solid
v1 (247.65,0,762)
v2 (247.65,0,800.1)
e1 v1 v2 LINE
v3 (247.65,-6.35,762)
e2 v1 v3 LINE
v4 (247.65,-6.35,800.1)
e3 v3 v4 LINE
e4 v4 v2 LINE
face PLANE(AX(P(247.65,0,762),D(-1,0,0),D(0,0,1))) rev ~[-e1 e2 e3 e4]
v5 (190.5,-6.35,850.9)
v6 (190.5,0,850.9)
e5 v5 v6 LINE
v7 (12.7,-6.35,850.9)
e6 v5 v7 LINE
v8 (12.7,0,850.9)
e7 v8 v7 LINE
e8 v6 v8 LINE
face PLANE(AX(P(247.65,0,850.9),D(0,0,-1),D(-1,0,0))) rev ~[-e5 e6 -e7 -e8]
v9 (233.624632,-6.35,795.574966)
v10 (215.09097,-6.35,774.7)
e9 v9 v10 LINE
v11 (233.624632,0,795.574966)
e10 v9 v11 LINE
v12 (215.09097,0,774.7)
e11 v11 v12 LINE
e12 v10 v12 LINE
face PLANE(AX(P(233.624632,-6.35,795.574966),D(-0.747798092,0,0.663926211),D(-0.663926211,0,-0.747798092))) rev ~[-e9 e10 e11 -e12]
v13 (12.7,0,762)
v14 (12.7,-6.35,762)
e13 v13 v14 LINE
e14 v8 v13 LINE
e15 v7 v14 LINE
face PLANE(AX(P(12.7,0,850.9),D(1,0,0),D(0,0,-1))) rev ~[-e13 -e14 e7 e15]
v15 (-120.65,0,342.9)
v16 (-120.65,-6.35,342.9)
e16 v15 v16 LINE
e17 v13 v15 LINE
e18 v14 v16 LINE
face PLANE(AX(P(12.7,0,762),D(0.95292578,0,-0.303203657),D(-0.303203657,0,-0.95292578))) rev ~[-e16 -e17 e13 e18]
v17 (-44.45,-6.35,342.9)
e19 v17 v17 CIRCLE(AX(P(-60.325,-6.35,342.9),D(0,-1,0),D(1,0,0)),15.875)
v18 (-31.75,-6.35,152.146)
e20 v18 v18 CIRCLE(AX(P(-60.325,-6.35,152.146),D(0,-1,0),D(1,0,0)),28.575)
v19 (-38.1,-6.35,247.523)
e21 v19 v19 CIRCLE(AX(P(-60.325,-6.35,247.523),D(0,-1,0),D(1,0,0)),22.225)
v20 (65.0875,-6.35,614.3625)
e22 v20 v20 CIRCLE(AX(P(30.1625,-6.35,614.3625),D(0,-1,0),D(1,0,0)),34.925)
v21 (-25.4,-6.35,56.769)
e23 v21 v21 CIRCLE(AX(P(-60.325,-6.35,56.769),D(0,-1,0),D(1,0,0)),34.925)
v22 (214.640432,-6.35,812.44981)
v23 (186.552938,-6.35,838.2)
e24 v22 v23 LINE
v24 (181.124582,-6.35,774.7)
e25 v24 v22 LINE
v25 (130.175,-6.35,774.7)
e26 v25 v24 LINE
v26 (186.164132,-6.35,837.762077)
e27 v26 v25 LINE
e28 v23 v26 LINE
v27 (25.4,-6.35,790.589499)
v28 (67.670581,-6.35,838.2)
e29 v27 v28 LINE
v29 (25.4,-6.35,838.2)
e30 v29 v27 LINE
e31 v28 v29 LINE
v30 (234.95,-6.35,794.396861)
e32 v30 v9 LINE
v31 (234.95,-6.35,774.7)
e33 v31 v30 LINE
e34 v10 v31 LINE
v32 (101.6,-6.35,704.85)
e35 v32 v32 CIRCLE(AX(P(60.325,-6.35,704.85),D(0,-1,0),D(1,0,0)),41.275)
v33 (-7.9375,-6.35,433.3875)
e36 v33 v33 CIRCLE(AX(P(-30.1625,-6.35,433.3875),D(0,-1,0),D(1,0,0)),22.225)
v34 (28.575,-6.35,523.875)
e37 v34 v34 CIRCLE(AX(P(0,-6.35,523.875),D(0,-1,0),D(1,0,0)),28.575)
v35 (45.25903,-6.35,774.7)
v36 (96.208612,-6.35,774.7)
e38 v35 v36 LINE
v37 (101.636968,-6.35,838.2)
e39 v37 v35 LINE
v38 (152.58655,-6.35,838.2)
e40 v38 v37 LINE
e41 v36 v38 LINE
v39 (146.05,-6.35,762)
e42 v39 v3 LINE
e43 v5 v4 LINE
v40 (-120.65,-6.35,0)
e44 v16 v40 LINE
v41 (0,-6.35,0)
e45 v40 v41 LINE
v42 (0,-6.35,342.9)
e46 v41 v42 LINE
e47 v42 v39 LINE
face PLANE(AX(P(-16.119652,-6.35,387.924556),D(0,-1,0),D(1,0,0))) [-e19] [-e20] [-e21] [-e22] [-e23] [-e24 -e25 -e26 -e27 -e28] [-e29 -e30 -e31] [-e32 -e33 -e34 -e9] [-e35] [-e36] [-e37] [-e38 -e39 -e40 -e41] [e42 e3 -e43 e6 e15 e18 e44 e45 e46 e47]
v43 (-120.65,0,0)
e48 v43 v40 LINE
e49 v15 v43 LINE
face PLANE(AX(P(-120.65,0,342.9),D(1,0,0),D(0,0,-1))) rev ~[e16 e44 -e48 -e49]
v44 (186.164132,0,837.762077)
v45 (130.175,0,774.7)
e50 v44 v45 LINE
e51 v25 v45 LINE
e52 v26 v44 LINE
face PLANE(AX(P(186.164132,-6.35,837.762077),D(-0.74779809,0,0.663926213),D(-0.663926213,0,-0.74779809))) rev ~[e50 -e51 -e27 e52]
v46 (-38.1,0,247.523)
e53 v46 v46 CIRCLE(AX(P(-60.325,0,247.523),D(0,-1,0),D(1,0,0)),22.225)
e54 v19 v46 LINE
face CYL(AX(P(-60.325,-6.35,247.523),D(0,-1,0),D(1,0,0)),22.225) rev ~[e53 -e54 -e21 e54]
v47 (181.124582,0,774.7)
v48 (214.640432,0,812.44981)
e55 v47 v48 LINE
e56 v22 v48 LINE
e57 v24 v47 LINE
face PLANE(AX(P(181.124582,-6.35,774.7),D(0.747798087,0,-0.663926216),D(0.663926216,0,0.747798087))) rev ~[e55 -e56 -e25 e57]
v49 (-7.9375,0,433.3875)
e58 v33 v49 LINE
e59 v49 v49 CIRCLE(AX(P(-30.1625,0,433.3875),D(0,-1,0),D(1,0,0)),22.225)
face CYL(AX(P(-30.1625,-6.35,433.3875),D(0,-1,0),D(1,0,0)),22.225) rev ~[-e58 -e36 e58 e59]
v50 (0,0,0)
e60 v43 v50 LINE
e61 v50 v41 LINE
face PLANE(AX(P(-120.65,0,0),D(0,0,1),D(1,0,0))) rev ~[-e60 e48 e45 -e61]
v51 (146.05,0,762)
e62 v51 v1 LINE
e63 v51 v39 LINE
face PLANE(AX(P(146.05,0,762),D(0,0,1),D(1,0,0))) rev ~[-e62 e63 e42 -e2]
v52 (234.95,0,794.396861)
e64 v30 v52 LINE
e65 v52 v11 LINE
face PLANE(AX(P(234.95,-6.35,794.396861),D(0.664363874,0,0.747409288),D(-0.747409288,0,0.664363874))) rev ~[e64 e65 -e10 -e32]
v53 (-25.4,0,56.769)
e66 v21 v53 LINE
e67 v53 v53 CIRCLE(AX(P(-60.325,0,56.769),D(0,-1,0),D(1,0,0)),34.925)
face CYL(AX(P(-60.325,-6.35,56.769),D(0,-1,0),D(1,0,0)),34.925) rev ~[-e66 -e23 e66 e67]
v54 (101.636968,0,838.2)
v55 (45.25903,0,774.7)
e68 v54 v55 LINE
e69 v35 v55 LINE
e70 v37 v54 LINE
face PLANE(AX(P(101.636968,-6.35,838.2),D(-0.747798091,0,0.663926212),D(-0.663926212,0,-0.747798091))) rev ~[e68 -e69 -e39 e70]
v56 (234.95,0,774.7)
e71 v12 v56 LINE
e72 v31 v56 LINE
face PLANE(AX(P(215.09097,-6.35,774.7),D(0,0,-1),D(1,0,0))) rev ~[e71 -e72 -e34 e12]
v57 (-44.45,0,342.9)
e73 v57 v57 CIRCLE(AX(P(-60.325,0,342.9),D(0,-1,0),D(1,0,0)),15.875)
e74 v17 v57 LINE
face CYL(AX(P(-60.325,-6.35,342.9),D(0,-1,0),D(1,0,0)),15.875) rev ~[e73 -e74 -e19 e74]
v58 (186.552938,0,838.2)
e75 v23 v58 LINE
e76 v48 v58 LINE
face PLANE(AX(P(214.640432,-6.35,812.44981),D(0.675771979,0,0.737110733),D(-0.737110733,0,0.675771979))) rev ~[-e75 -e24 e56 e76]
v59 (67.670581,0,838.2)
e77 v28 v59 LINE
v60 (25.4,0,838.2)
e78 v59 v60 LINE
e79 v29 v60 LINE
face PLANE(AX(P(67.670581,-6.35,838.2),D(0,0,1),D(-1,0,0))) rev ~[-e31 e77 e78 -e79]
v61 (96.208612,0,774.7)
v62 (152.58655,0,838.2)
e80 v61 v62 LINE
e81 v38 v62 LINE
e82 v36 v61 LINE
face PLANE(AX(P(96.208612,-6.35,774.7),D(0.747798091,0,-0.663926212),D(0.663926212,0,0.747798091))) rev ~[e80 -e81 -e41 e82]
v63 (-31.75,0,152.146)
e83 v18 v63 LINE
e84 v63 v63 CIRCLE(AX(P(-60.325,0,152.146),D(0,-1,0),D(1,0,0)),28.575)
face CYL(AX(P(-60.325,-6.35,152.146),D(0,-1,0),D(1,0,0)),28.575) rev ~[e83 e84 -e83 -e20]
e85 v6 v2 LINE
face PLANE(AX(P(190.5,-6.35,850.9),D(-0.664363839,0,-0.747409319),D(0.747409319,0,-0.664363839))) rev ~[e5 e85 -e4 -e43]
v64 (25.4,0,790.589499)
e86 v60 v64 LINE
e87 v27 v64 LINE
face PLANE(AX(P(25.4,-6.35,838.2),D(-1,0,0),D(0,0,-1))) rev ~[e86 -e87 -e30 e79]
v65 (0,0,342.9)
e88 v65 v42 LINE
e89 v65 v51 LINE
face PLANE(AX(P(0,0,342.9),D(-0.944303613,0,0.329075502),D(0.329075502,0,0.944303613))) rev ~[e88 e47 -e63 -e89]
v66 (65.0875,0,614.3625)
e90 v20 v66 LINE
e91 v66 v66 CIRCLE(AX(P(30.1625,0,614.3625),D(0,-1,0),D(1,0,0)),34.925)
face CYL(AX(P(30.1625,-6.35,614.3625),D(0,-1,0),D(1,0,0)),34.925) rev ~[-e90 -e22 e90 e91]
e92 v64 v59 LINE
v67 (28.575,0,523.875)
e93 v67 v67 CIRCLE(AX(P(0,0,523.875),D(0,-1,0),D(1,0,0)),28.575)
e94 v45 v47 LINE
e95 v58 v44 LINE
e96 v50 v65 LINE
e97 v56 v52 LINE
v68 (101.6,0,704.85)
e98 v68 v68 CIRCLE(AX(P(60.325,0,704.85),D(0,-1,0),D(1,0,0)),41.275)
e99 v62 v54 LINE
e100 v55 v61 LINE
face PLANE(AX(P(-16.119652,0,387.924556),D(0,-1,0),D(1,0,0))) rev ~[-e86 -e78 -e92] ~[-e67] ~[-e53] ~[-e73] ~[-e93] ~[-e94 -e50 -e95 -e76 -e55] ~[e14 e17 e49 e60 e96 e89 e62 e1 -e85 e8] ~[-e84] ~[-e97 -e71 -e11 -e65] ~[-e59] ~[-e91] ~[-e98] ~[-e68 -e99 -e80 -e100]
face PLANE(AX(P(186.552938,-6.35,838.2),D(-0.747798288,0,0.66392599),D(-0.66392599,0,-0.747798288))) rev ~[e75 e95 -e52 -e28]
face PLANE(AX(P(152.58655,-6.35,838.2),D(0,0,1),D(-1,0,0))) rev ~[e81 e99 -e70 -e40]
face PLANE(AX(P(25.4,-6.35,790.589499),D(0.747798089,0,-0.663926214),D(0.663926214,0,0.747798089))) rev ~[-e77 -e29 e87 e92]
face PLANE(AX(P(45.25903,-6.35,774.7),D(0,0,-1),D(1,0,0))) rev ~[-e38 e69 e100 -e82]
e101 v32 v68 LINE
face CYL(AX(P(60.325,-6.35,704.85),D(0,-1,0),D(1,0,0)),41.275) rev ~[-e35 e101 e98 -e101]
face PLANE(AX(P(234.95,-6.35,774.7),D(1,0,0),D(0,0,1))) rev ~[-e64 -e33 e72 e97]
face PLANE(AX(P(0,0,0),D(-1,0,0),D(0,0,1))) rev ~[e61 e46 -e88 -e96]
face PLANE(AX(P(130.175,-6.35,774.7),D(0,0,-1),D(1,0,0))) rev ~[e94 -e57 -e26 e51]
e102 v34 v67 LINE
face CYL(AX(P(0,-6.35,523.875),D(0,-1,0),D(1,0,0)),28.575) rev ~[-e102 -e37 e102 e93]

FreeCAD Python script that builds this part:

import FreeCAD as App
import Part
import Sketcher

V = App.Vector
Q = App.Units.Quantity

doc = App.newDocument("Part")
body = doc.addObject("PartDesign::Body", "Body")

# Sketch on XZ plane
sketch1 = doc.addObject("Sketcher::SketchObject", "Sketch")
body.addObject(sketch1)
sketch1.AttachmentSupport = (doc.XZ_Plane, [""])
sketch1.MapMode = "FlatFace"
sketch1.addGeometry([
    Part.LineSegment(V(-121, 343, 0), V(-121, 0, 0)),  # 0
    Part.LineSegment(V(-121, 0, 0), V(0, 0, 0)),  # 1
    Part.LineSegment(V(0, 0, 0), V(0, 343, 0)),  # 2
    Part.LineSegment(V(0, 343, 0), V(146, 762, 0)),  # 3
    Part.LineSegment(V(146, 762, 0), V(248, 762, 0)),  # 4
    Part.LineSegment(V(248, 762, 0), V(248, 851, 0)),  # 5
    Part.LineSegment(V(248, 851, 0), V(13, 851, 0)),  # 6
    Part.LineSegment(V(13, 851, 0), V(13, 762, 0)),  # 7
    Part.LineSegment(V(13, 762, 0), V(-121, 343, 0)),  # 8
], False)
sketch1.addConstraint([
    Sketcher.Constraint("Coincident", 0, 2, 1, 1),
    Sketcher.Constraint("Coincident", 1, 2, 2, 1),
    Sketcher.Constraint("Coincident", 2, 2, 3, 1),
    Sketcher.Constraint("Coincident", 3, 2, 4, 1),
    Sketcher.Constraint("Coincident", 4, 2, 5, 1),
    Sketcher.Constraint("Coincident", 5, 2, 6, 1),
    Sketcher.Constraint("Coincident", 6, 2, 7, 1),
    Sketcher.Constraint("Coincident", 7, 2, 8, 1),
    Sketcher.Constraint("Coincident", 8, 2, 0, 1),
    Sketcher.Constraint("Vertical", 0),
    Sketcher.Constraint("Horizontal", 1),
    Sketcher.Constraint("Vertical", 2),
    Sketcher.Constraint("Horizontal", 4),
    Sketcher.Constraint("Vertical", 5),
    Sketcher.Constraint("Horizontal", 6),
    Sketcher.Constraint("Vertical", 7),
    Sketcher.Constraint("Coincident", 1, 2, -1, 1),
    Sketcher.Constraint("Horizontal", 4, 2, 7, 2),
    Sketcher.Constraint("Horizontal", 2, 2, 8, 2),
    Sketcher.Constraint("DistanceX", 4, 1, 4, 2, Q("4 in")),
    Sketcher.Constraint("DistanceY", 0, 2, 0, 1, Q("13.5 in")),
    Sketcher.Constraint("DistanceY", 5, 1, 5, 2, Q("3.5 in")),
    Sketcher.Constraint("DistanceY", -1, 1, 3, 2, Q("30 in")),
    Sketcher.Constraint("DistanceX", 1, 1, 1, 2, Q("4.75 in")),
    Sketcher.Constraint("DistanceX", 6, 2, 6, 1, Q("9.25 in")),
    Sketcher.Constraint("DistanceX", -1, 1, 6, 2, Q("0.5 in")),
])
pad1 = doc.addObject("PartDesign::Pad", "Pad")
body.addObject(pad1)
pad1.Profile = sketch1
pad1.Length = Q("0.25 in")

# Sketch on XZ plane
sketch2 = doc.addObject("Sketcher::SketchObject", "Sketch001")
body.addObject(sketch2)
sketch2.AttachmentSupport = (doc.XZ_Plane, [""])
sketch2.MapMode = "FlatFace"
sketch2.AttachmentOffset = App.Placement(V(0, 0, 0.25 * 25.4), App.Rotation())
sketch2.addGeometry([
    Part.LineSegment(V(248, 851, 0), V(190, 851, 0)),
    Part.LineSegment(V(190, 851, 0), V(248, 800, 0)),
    Part.LineSegment(V(248, 800, 0), V(248, 851, 0)),
], False)
sketch2.addConstraint([
    Sketcher.Constraint("Coincident", 0, 2, 1, 1),
    Sketcher.Constraint("Coincident", 1, 2, 2, 1),
    Sketcher.Constraint("Coincident", 2, 2, 0, 1),
    Sketcher.Constraint("Horizontal", 0),
    Sketcher.Constraint("Vertical", 2),
    Sketcher.Constraint("DistanceY", 2, 1, 2, 2, Q("2 in")),
    Sketcher.Constraint("DistanceX", 0, 2, 0, 1, Q("2.25 in")),
    Sketcher.Constraint("DistanceX", -1, 1, 0, 2, Q("7.5 in")),
    Sketcher.Constraint("DistanceY", -1, 1, 0, 2, Q("33.5 in")),
])
pocket1 = doc.addObject("PartDesign::Pocket", "Pocket")
body.addObject(pocket1)
pocket1.Profile = sketch2
pocket1.Length = Q("1 in")

# Sketch on XZ plane
sketch3 = doc.addObject("Sketcher::SketchObject", "Sketch002")
body.addObject(sketch3)
sketch3.AttachmentSupport = (doc.XZ_Plane, [""])
sketch3.MapMode = "FlatFace"
sketch3.AttachmentOffset = App.Placement(V(0, 0, 0.25 * 25.4), App.Rotation())
sketch3.addGeometry([
    Part.Circle(V(-60.3, 342.9, 0), V(0, 0, 1), 15.9),  # 0
    Part.Circle(V(-30.2, 433.4, 0), V(0, 0, 1), 22.2),  # 1
    Part.Circle(V(60.3, 704.9, 0), V(0, 0, 1), 41.3),  # 2
    Part.LineSegment(V(186.6, 838.2, 0), V(186.2, 837.8, 0)),  # 3
    Part.LineSegment(V(186.2, 837.8, 0), V(130.2, 774.7, 0)),  # 4
    Part.LineSegment(V(130.2, 774.7, 0), V(181.1, 774.7, 0)),  # 5
    Part.LineSegment(V(181.1, 774.7, 0), V(214.6, 812.4, 0)),  # 6
    Part.LineSegment(V(214.6, 812.4, 0), V(186.6, 838.2, 0)),  # 7
    Part.LineSegment(V(234.9, 794.4, 0), V(233.6, 795.6, 0)),  # 8
    Part.LineSegment(V(233.6, 795.6, 0), V(215.1, 774.7, 0)),  # 9
    Part.LineSegment(V(215.1, 774.7, 0), V(234.9, 774.7, 0)),  # 10
    Part.LineSegment(V(234.9, 774.7, 0), V(234.9, 794.4, 0)),  # 11
    Part.Circle(V(0, 523.9, 0), V(0, 0, 1), 28.6),  # 12
    Part.Circle(V(30.2, 614.4, 0), V(0, 0, 1), 34.9),  # 13
    Part.LineSegment(V(67.7, 838.2, 0), V(25.4, 838.2, 0)),  # 14
    Part.LineSegment(V(25.4, 838.2, 0), V(25.4, 790.6, 0)),  # 15
    Part.LineSegment(V(25.4, 790.6, 0), V(67.7, 838.2, 0)),  # 16
    Part.LineSegment(V(152.6, 838.2, 0), V(101.6, 838.2, 0)),  # 17
    Part.LineSegment(V(101.6, 838.2, 0), V(45.3, 774.7, 0)),  # 18
    Part.LineSegment(V(45.3, 774.7, 0), V(96.2, 774.7, 0)),  # 19
    Part.LineSegment(V(96.2, 774.7, 0), V(152.6, 838.2, 0)),  # 20
    Part.Circle(V(-60.3, 247.5, 0), V(0, 0, 1), 22.2),  # 21
    Part.Circle(V(-60.3, 152.1, 0), V(0, 0, 1), 28.6),  # 22
    Part.Circle(V(-60.3, 56.8, 0), V(0, 0, 1), 34.9),  # 23
], False)
sketch3.addConstraint([
    Sketcher.Constraint("Coincident", 3, 2, 4, 1),
    Sketcher.Constraint("Coincident", 4, 2, 5, 1),
    Sketcher.Constraint("Coincident", 5, 2, 6, 1),
    Sketcher.Constraint("Coincident", 6, 2, 7, 1),
    Sketcher.Constraint("Coincident", 7, 2, 3, 1),
    Sketcher.Constraint("Coincident", 8, 2, 9, 1),
    Sketcher.Constraint("Coincident", 9, 2, 10, 1),
    Sketcher.Constraint("Coincident", 10, 2, 11, 1),
    Sketcher.Constraint("Coincident", 11, 2, 8, 1),
    Sketcher.Constraint("Coincident", 14, 2, 15, 1),
    Sketcher.Constraint("Coincident", 15, 2, 16, 1),
    Sketcher.Constraint("Coincident", 16, 2, 14, 1),
    Sketcher.Constraint("Coincident", 17, 2, 18, 1),
    Sketcher.Constraint("Coincident", 18, 2, 19, 1),
    Sketcher.Constraint("Coincident", 19, 2, 20, 1),
    Sketcher.Constraint("Coincident", 20, 2, 17, 1),
    Sketcher.Constraint("Horizontal", 5),
    Sketcher.Constraint("Horizontal", 10),
    Sketcher.Constraint("Vertical", 11),
    Sketcher.Constraint("Horizontal", 14),
    Sketcher.Constraint("Vertical", 15),
    Sketcher.Constraint("Horizontal", 17),
    Sketcher.Constraint("Horizontal", 19),
    Sketcher.Constraint("Equal", 1, 21),
    Sketcher.Constraint("Equal", 12, 22),
    Sketcher.Constraint("Equal", 13, 23),
    Sketcher.Constraint("PointOnObject", 12, 3, -2),
    Sketcher.Constraint("Parallel", 3, 4),
    Sketcher.Constraint("Parallel", 4, 6),
    Sketcher.Constraint("Parallel", 6, 9),
    Sketcher.Constraint("Parallel", 9, 16),
    Sketcher.Constraint("Parallel", 16, 18),
    Sketcher.Constraint("Parallel", 18, 20),
    Sketcher.Constraint("Horizontal", 5, 2, 9, 2),
    Sketcher.Constraint("Horizontal", 7, 2, 14, 2),
    Sketcher.Constraint("Horizontal", 16, 2, 17, 2),
    Sketcher.Constraint("Horizontal", 10, 2, 18, 2),
    Sketcher.Constraint("Vertical", 0, 3, 21, 3),
    Sketcher.Constraint("Vertical", 21, 3, 22, 3),
    Sketcher.Constraint("Vertical", 22, 3, 23, 3),
    Sketcher.Constraint("Equal", 5, 17),
    Sketcher.Constraint("Diameter", 0, Q("1.25 in")),
    Sketcher.Constraint("Diameter", 1, Q("1.75 in")),
    Sketcher.Constraint("Diameter", 2, Q("3.25 in")),
    Sketcher.Constraint("Diameter", 12, Q("2.25 in")),
    Sketcher.Constraint("Diameter", 13, Q("2.75 in")),
    Sketcher.Constraint("DistanceY", -1, 1, 7, 2, Q("33 in")),
    Sketcher.Constraint("DistanceX", -1, 1, 14, 2, Q("1 in")),
    Sketcher.Constraint("DistanceY", -1, 1, 0, 3, Q("13.5 in")),
    Sketcher.Constraint("DistanceY", -1, 1, 4, 2, Q("30.5 in")),
    Sketcher.Constraint("Angle", 4, Q("-131.6 deg")),
    Sketcher.Constraint("DistanceY", -1, 1, 2, 3, Q("27.75 in")),
    Sketcher.Constraint("DistanceY", -1, 1, 22, 3, Q("5.99 in")),
    Sketcher.Constraint("DistanceX", -1, 1, 10, 2, Q("9.25 in")),
    Sketcher.Constraint("DistanceX", 0, 3, 2, 3, Q("4.75 in")),
    Sketcher.Constraint("DistanceY", 21, 3, 12, 3, Q("10.88 in")),
    Sketcher.Constraint("DistanceY", 23, 3, 21, 3, Q("7.51 in")),
    Sketcher.Constraint("DistanceX", 2, 3, 4, 2, Q("2.75 in")),
    Sketcher.Constraint("DistanceX", 0, 3, -1, 1, Q("2.375 in")),
    Sketcher.Constraint("DistanceX", 1, 3, -1, 1, Q("1.1875 in")),
    Sketcher.Constraint("DistanceY", -1, 1, 1, 3, Q("17.0625 in")),
    Sketcher.Constraint("DistanceY", -1, 1, 12, 3, Q("20.625 in")),
    Sketcher.Constraint("DistanceX", -1, 1, 13, 3, Q("1.1875 in")),
    Sketcher.Constraint("DistanceY", -1, 1, 13, 3, Q("24.1875 in")),
    Sketcher.Constraint("DistanceY", 15, 2, 15, 1, 47.610501),
    Sketcher.Constraint("DistanceX", 5, 1, 5, 2, 50.949582),
    Sketcher.Constraint("DistanceX", 10, 1, 10, 2, 19.85903),
    Sketcher.Constraint("DistanceY", 11, 1, 11, 2, 19.696861),
    Sketcher.Constraint("DistanceX", 3, 2, 6, 2, 28.4763),
    Sketcher.Constraint("DistanceX", 6, 2, 8, 2, 18.9842),
    Sketcher.Constraint("Distance", 7, 38.10485),
    Sketcher.Constraint("DistanceX", -1, 1, 18, 2, 45.25903),
])
pocket2 = doc.addObject("PartDesign::Pocket", "Pocket001")
body.addObject(pocket2)
pocket2.Profile = sketch3
pocket2.Length = Q("1 in")

doc.recompute()
